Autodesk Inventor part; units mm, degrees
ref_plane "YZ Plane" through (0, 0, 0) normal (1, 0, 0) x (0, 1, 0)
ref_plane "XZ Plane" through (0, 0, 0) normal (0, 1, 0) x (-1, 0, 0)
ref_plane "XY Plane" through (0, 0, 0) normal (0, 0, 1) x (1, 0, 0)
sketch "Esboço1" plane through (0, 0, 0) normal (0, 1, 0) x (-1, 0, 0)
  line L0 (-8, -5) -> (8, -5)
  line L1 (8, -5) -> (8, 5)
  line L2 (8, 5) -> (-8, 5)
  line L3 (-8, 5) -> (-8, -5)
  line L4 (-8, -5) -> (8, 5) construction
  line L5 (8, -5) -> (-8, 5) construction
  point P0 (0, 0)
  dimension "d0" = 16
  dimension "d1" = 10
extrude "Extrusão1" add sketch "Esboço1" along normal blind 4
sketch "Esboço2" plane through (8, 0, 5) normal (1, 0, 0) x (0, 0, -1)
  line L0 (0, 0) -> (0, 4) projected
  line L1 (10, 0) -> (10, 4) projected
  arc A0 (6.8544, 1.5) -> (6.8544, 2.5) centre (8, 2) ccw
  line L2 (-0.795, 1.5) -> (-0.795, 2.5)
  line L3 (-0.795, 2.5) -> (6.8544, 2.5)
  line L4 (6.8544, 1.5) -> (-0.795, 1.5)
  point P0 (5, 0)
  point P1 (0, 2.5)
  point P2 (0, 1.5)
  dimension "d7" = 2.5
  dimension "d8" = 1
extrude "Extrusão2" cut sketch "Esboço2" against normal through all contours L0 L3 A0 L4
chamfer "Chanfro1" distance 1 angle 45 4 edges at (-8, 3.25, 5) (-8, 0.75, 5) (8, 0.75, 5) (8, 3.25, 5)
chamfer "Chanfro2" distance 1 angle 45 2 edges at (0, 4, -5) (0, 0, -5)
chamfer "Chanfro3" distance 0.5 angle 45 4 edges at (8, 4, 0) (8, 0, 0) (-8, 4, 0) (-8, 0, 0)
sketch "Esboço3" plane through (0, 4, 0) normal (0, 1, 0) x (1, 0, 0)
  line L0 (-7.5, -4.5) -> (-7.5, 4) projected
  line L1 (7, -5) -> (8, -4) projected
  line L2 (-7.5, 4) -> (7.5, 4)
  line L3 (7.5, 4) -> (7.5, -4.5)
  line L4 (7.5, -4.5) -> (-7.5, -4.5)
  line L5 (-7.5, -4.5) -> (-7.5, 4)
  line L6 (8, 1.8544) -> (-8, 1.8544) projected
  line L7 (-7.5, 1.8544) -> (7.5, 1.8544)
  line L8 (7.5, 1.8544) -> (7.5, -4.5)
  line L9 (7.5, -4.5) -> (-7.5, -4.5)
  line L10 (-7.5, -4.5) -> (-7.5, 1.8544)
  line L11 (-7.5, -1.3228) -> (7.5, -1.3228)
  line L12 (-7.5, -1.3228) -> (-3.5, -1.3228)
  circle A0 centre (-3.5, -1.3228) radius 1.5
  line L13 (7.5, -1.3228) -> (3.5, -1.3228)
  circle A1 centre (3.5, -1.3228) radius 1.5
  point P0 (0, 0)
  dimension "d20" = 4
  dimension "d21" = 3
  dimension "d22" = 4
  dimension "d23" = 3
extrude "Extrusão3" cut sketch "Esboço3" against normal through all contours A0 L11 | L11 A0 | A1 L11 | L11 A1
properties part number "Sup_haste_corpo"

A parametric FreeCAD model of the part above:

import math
import FreeCAD as App
import Part
import Sketcher

V = App.Vector


def edges_at(feature, points):
    """Names of the edges that pass closest to the given points."""
    edges = feature.Shape.Edges
    near = lambda p: min(range(len(edges)), key=lambda i: edges[i].distToShape(Part.Vertex(*p))[0])
    return sorted({f"Edge{near(p) + 1}" for p in points})

doc = App.newDocument("Part")
params = doc.addObject("Spreadsheet::Sheet", "Params")
for row, (alias, value) in enumerate([
    ("sketch1_width", "16 mm"),
    ("sketch1_height", "10 mm"),
    ("pad1_length", "4 mm"),
    ("sketch2_width", "1 mm"),
    ("sketch2_radius", "1.25 mm"),
    ("chamfer_size", "1 mm"),
    ("chamfer2_size", "1 mm"),
    ("chamfer3_size", "0.5 mm"),
    ("sketch3_diameter", "3 mm"),
], start=1):
    params.set(f"A{row}", alias)
    params.set(f"B{row}", "=" + value)
    params.setAlias(f"B{row}", alias)

body = doc.addObject("PartDesign::Body", "Body")

# Sketch on XZ plane
sketch1 = body.newObject("Sketcher::SketchObject", "Sketch")
sketch1.AttachmentSupport = (doc.getObject("XZ_Plane"), [""])
sketch1.MapMode = "FlatFace"
sketch1.addGeometry([
    Part.LineSegment(V(8, 5, 0), V(8, -5, 0)),
    Part.LineSegment(V(8, -5, 0), V(-8, -5, 0)),
    Part.LineSegment(V(-8, -5, 0), V(-8, 5, 0)),
    Part.LineSegment(V(-8, 5, 0), V(8, 5, 0)),
], False)
sketch1.addConstraint([
    Sketcher.Constraint("Coincident", 0, 2, 1, 1),
    Sketcher.Constraint("Coincident", 1, 2, 2, 1),
    Sketcher.Constraint("Coincident", 2, 2, 3, 1),
    Sketcher.Constraint("Coincident", 3, 2, 0, 1),
    Sketcher.Constraint("Vertical", 0),
    Sketcher.Constraint("Horizontal", 1),
    Sketcher.Constraint("Vertical", 2),
    Sketcher.Constraint("Horizontal", 3),
    Sketcher.Constraint("Symmetric", 0, 2, 2, 2, -1, 1),
    Sketcher.Constraint("DistanceX", 1, 2, 1, 1, 16.0),
    Sketcher.Constraint("DistanceY", 0, 2, 0, 1, 10.0),
])
sketch1.setExpression("Constraints[9]", "Params.sketch1_width")
sketch1.setExpression("Constraints[10]", "Params.sketch1_height")
pad1 = body.newObject("PartDesign::Pad", "Pad")
pad1.Profile = sketch1
pad1.setExpression("Length", "Params.pad1_length")
pad1.Reversed = True

# Sketch on YZ plane
sketch2 = body.newObject("Sketcher::SketchObject", "Sketch001")
sketch2.AttachmentSupport = (doc.getObject("YZ_Plane"), [""])
sketch2.MapMode = "FlatFace"
sketch2.AttachmentOffset = App.Placement(V(0, 0, 8), App.Rotation())
sketch2.addGeometry([
    Part.LineSegment(V(2.5, 5, 0), V(1.5, 5, 0)),
    Part.LineSegment(V(1.5, 5, 0), V(1.5, -1.9, 0)),
    Part.ArcOfCircle(Part.Circle(V(2, -3, 0), V(0, 0, 1), 1.2), math.radians(114), math.radians(426)),
    Part.LineSegment(V(2.5, -1.9, 0), V(2.5, 5, 0)),
], False)
sketch2.addConstraint([
    Sketcher.Constraint("Coincident", 0, 2, 1, 1),
    Sketcher.Constraint("Coincident", 1, 2, 2, 1),
    Sketcher.Constraint("Coincident", 2, 2, 3, 1),
    Sketcher.Constraint("Coincident", 3, 2, 0, 1),
    Sketcher.Constraint("Horizontal", 0),
    Sketcher.Constraint("Vertical", 1),
    Sketcher.Constraint("Vertical", 3),
    Sketcher.Constraint("Horizontal", 1, 2, 2, 2),
    Sketcher.Constraint("DistanceX", 0, 2, 0, 1, 1.0),
    Sketcher.Constraint("Radius", 2, 1.25),
    Sketcher.Constraint("DistanceX", -1, 1, 2, 2, 2.5),
    Sketcher.Constraint("DistanceY", 2, 3, -1, 1, 3.0),
    Sketcher.Constraint("DistanceY", -1, 1, 0, 2, 5.0),
])
sketch2.setExpression("Constraints[8]", "Params.sketch2_width")
sketch2.setExpression("Constraints[9]", "Params.sketch2_radius")
pocket1 = body.newObject("PartDesign::Pocket", "Pocket")
pocket1.Profile = sketch2
pocket1.Type = "ThroughAll"
doc.recompute()

chamfer = body.newObject("PartDesign::Chamfer", "Chamfer")
chamfer.Base = (pocket1, edges_at(pocket1, [
    (-8, 3.25, 5),
    (-8, 0.75, 5),
    (8, 0.75, 5),
    (8, 3.25, 5),
]))
chamfer.setExpression("Size", "Params.chamfer_size")
doc.recompute()

chamfer2 = body.newObject("PartDesign::Chamfer", "Chamfer001")
chamfer2.Base = (chamfer, edges_at(chamfer, [(0, 4, -5), (0, 0, -5)]))
chamfer2.setExpression("Size", "Params.chamfer2_size")
doc.recompute()

chamfer3 = body.newObject("PartDesign::Chamfer", "Chamfer002")
chamfer3.Base = (chamfer2, edges_at(chamfer2, [
    (8, 4, 0),
    (8, 0, 0),
    (-8, 4, 0),
    (-8, 0, 0),
]))
chamfer3.setExpression("Size", "Params.chamfer3_size")

# Sketch on XZ plane
sketch3 = body.newObject("Sketcher::SketchObject", "Sketch002")
sketch3.AttachmentSupport = (doc.getObject("XZ_Plane"), [""])
sketch3.MapMode = "FlatFace"
sketch3.AttachmentOffset = App.Placement(V(0, 0, -4), App.Rotation())
sketch3.addGeometry([
    Part.Circle(V(-3.5, 1.3, 0), V(0, 0, 1), 1.5),
    Part.Circle(V(3.5, 1.3, 0), V(0, 0, 1), 1.5),
], False)
sketch3.addConstraint([
    Sketcher.Constraint("Equal", 0, 1),
    Sketcher.Constraint("Symmetric", 0, 3, 1, 3, -2),
    Sketcher.Constraint("Diameter", 0, 3.0),
    Sketcher.Constraint("DistanceX", 0, 3, 1, 3, 7.0),
    Sketcher.Constraint("DistanceY", -1, 1, 0, 3, 1.3228),
])
sketch3.setExpression("Constraints[2]", "Params.sketch3_diameter")
pocket2 = body.newObject("PartDesign::Pocket", "Pocket001")
pocket2.Profile = sketch3
pocket2.Type = "ThroughAll"
pocket2.Reversed = True

doc.recompute()
